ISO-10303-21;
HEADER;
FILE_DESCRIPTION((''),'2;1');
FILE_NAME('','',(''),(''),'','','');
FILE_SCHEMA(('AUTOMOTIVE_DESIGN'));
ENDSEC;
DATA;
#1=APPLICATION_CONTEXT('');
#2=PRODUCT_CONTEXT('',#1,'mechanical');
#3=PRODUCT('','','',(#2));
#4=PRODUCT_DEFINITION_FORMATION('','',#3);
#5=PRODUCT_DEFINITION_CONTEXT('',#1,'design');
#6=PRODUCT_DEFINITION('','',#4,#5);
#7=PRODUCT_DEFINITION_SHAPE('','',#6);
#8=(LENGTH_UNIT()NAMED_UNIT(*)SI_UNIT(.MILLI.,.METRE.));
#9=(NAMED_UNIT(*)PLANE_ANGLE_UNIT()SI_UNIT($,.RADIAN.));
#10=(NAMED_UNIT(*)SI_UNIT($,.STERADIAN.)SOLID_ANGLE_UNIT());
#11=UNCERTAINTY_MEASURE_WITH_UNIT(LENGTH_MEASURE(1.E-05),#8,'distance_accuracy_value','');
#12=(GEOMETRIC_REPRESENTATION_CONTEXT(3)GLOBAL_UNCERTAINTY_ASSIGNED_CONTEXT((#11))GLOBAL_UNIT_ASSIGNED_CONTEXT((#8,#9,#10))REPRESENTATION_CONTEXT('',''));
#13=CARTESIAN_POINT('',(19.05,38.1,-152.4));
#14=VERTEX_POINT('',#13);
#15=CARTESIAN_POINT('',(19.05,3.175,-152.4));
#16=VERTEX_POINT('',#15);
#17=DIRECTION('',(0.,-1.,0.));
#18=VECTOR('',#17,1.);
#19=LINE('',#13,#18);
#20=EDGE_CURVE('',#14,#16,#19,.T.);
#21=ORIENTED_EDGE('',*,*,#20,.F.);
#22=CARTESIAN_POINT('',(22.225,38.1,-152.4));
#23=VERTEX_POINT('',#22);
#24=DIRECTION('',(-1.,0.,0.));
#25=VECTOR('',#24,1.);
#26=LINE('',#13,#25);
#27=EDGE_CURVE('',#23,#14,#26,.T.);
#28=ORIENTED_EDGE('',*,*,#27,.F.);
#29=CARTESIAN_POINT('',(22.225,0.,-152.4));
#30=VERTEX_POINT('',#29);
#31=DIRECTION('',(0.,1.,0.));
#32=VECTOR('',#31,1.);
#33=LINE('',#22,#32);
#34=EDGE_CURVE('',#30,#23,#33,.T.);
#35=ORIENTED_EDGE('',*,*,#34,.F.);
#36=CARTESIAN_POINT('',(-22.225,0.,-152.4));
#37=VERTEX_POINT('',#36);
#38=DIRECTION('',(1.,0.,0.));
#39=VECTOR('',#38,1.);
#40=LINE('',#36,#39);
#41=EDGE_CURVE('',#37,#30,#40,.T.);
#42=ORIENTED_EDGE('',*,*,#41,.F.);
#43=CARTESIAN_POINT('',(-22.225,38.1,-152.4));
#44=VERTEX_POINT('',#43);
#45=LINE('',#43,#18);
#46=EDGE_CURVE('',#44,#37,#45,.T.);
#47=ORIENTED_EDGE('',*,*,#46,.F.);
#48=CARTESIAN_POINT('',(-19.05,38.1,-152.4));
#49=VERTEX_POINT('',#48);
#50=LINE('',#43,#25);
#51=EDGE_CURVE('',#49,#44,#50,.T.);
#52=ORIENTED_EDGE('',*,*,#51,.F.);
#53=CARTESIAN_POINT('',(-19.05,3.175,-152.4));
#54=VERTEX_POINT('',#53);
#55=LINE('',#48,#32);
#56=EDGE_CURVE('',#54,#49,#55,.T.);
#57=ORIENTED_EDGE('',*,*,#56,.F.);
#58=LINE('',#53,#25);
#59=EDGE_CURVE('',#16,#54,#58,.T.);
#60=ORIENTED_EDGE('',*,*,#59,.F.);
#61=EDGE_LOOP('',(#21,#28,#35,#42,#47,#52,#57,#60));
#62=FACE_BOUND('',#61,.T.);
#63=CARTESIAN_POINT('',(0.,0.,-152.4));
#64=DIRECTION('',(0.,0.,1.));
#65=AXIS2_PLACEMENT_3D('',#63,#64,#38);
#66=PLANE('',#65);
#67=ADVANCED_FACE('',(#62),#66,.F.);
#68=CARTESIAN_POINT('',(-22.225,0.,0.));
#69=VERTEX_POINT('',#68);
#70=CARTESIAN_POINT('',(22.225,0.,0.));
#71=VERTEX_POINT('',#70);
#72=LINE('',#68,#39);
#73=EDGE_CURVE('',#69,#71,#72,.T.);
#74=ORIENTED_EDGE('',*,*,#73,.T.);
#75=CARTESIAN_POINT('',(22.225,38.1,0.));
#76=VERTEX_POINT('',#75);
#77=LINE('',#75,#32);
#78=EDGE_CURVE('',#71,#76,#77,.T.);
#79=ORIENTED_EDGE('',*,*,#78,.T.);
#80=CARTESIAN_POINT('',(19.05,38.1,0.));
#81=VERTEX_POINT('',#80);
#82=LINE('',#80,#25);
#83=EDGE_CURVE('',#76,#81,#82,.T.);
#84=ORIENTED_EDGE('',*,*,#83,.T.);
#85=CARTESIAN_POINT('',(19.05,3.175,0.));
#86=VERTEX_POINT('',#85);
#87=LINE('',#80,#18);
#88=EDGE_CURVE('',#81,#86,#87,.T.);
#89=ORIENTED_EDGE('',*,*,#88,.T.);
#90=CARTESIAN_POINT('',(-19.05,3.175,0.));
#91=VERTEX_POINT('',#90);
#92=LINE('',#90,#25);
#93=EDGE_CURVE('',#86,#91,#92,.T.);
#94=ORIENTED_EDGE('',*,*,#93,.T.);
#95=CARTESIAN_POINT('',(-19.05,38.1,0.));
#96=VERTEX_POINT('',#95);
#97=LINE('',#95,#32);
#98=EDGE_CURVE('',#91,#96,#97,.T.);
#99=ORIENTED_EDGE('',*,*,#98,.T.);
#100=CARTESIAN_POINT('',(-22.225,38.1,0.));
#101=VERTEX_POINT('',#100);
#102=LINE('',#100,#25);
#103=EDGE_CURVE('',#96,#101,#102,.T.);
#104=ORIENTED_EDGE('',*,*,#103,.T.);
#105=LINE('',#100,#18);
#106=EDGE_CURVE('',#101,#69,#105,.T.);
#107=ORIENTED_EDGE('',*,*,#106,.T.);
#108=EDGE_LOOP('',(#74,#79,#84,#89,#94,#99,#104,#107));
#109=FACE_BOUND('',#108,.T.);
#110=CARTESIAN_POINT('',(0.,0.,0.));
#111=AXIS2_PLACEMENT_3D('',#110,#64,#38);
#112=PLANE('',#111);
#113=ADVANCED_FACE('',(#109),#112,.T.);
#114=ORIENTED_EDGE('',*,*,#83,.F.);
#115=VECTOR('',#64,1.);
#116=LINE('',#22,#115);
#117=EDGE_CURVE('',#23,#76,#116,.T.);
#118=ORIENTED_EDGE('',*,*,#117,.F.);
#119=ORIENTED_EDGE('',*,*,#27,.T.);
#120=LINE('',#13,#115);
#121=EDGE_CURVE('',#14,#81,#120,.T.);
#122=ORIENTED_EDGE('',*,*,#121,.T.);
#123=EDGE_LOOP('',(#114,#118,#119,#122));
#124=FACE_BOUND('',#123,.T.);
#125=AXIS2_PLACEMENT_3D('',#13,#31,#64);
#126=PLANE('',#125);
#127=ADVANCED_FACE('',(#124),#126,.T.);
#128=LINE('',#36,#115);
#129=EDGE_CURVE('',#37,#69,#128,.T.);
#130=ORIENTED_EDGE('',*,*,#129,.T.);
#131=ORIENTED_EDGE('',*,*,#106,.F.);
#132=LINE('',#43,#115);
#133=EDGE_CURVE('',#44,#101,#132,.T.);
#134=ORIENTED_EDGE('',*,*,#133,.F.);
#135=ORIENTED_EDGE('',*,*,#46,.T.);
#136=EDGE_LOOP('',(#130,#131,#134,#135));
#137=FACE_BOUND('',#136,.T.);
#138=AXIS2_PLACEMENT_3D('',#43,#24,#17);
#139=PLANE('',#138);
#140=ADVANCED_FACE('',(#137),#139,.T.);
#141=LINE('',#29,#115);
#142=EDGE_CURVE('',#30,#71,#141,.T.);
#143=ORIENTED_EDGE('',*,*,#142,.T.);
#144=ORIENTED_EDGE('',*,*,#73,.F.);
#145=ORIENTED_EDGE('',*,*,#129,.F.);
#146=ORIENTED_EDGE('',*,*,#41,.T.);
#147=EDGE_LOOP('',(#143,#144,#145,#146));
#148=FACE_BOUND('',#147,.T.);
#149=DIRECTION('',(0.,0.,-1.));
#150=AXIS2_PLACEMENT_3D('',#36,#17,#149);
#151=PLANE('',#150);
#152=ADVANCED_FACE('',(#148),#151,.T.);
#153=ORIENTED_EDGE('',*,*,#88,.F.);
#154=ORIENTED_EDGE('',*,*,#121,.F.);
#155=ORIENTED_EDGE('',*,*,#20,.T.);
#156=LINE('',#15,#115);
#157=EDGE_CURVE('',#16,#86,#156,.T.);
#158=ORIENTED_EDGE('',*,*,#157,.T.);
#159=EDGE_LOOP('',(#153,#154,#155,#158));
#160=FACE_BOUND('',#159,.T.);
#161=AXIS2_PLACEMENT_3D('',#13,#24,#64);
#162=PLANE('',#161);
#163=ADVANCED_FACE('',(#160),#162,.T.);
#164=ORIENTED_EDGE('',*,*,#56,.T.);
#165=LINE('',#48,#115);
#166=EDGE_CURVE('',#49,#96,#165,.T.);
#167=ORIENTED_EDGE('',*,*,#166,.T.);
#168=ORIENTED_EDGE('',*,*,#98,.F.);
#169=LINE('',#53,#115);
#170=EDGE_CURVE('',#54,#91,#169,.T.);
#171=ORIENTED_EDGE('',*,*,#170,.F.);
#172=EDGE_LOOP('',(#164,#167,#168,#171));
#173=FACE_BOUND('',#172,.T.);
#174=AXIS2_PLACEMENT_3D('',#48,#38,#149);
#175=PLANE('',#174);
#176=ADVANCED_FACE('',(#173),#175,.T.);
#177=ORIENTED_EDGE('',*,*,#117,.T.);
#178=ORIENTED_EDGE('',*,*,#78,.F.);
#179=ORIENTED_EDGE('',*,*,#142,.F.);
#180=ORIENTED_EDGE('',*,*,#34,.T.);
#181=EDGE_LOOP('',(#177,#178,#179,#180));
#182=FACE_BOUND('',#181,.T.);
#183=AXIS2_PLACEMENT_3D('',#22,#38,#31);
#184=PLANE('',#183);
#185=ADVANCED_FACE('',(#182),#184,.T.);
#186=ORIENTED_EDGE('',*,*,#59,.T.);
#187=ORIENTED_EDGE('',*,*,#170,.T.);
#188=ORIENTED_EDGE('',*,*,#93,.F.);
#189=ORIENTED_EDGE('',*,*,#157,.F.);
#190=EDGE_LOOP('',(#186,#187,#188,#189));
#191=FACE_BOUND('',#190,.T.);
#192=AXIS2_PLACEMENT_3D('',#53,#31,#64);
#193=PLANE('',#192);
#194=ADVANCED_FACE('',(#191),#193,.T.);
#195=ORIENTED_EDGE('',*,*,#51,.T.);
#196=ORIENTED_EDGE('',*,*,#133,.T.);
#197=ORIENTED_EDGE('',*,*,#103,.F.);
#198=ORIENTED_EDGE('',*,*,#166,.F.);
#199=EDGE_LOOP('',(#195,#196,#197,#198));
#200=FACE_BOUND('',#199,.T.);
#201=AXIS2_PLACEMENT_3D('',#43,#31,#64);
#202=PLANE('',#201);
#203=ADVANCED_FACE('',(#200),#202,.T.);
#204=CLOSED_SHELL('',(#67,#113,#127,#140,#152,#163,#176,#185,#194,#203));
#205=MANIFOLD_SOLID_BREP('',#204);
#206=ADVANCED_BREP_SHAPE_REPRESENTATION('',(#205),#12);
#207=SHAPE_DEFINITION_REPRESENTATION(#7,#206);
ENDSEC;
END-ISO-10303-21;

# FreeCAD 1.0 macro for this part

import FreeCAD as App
import Part
import Sketcher
from FreeCAD import Vector
Q = App.Units.Quantity


def add_polygon(sketch, points):
    """Adds a closed chain of lines whose ends are joined by coincident constraints."""
    first, n = sketch.GeometryCount, len(points)
    for a, b in zip(points, points[1:] + points[:1]):
        sketch.addGeometry(Part.LineSegment(App.Vector(*a, 0), App.Vector(*b, 0)), False)
    for i in range(n):
        sketch.addConstraint(Sketcher.Constraint("Coincident", first + i, 2, first + (i + 1) % n, 1))

doc = App.newDocument("Part")
body = doc.addObject("PartDesign::Body", "Body")

# Sketch on XY plane
sketch1 = body.newObject("Sketcher::SketchObject", "Sketch")
sketch1.AttachmentSupport = (doc.getObject("XY_Plane"), [""])
sketch1.MapMode = "FlatFace"
add_polygon(sketch1, [(22.225, 38.1), (19.05, 38.1), (19.05, 3.175), (-19.05, 3.175), (-19.05, 38.1), (-22.225, 38.1), (-22.225, 0), (22.225, 0)])  # lines 0-7
sketch1.addConstraint([
    Sketcher.Constraint("Horizontal", 0),
    Sketcher.Constraint("Vertical", 1),
    Sketcher.Constraint("Horizontal", 2),
    Sketcher.Constraint("Vertical", 3),
    Sketcher.Constraint("Horizontal", 4),
    Sketcher.Constraint("Vertical", 5),
    Sketcher.Constraint("Horizontal", 6),
    Sketcher.Constraint("Vertical", 7),
    Sketcher.Constraint("Symmetric", 5, 2, 6, 2, -1, 1),
    Sketcher.Constraint("Symmetric", 0, 2, 3, 2, -2),
    Sketcher.Constraint("Equal", 2, 5),
    Sketcher.Constraint("DistanceX", 2, 2, 2, 1, Q("1.5 in")),
    Sketcher.Constraint("DistanceX", 6, 1, 6, 2, Q("1.75 in")),
    Sketcher.Constraint("DistanceY", 1, 2, 1, 1, Q("1.375 in")),
])
pad1 = body.newObject("PartDesign::Pad", "Pad")
pad1.Profile = sketch1
pad1.Length = Q("6 in")
pad1.Reversed = True

doc.recompute()
